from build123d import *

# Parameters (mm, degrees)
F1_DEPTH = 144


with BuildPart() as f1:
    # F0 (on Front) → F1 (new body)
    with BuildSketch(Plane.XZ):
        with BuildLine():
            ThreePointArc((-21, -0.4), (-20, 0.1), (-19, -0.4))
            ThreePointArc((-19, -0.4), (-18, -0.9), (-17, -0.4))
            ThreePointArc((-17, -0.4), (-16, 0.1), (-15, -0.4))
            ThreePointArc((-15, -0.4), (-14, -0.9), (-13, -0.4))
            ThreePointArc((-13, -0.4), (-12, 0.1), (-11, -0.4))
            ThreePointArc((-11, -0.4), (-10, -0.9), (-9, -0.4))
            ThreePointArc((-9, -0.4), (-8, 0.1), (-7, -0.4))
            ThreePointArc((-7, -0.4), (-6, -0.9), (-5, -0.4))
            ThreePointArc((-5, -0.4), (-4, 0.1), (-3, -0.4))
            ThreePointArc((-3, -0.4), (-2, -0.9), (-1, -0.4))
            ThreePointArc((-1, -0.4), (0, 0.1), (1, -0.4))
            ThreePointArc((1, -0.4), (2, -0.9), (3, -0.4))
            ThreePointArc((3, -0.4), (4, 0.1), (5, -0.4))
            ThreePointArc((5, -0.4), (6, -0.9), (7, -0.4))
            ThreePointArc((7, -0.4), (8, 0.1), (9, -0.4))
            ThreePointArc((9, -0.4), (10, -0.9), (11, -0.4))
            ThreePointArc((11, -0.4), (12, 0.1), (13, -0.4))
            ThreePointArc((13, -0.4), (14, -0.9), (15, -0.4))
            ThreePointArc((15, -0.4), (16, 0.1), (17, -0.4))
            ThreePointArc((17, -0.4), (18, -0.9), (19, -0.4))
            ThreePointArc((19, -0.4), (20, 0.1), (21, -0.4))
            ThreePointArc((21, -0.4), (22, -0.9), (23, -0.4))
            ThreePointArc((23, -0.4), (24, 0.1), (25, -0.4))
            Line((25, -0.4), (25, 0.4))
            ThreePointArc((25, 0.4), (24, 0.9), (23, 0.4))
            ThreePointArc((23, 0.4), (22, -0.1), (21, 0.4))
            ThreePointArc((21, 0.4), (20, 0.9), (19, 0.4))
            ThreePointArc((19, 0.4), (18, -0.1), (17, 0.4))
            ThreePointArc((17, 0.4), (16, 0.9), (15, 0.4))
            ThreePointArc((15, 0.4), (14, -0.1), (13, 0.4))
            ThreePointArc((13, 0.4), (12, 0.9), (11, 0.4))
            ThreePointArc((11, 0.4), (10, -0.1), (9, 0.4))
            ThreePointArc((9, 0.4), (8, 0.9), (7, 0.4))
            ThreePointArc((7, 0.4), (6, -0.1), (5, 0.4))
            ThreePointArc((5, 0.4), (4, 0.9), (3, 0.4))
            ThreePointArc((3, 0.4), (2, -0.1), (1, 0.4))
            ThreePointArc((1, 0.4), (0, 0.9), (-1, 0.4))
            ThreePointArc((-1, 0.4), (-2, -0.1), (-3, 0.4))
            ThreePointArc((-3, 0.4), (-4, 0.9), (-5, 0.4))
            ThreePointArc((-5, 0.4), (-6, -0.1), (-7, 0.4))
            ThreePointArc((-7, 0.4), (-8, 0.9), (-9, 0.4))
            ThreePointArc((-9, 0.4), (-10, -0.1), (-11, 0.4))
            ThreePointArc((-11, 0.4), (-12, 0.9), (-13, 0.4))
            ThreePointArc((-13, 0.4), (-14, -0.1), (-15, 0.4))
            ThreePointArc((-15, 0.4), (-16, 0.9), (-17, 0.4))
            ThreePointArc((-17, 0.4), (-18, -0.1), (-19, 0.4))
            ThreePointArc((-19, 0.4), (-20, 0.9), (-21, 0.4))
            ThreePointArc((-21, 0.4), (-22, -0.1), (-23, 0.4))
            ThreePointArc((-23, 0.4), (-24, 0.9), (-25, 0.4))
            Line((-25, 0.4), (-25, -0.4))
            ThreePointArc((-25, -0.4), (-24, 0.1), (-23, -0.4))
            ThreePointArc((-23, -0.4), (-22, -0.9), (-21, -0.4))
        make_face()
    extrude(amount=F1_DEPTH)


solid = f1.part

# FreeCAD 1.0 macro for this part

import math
import FreeCAD as App
import Part
import Sketcher

V = App.Vector

doc = App.newDocument("Part")
params = doc.addObject("Spreadsheet::Sheet", "Params")
for row, (alias, value) in enumerate([
    ("sketch1_radius", "1.25 mm"),
    ("sketch1_height", "0.8 mm"),
    ("pad1_length", "144 mm"),
], start=1):
    params.set(f"A{row}", alias)
    params.set(f"B{row}", "=" + value)
    params.setAlias(f"B{row}", alias)

body = doc.addObject("PartDesign::Body", "Body")

# Sketch on XZ plane
sketch1 = body.newObject("Sketcher::SketchObject", "Sketch")
sketch1.AttachmentSupport = (doc.getObject("XZ_Plane"), [""])
sketch1.MapMode = "FlatFace"
sketch1.addGeometry([
    Part.ArcOfCircle(Part.Circle(V(-20, -1.1, 0), V(0, 0, 1), 1.2), math.radians(37), math.radians(143)),  # 0
    Part.ArcOfCircle(Part.Circle(V(-18, 0.3, 0), V(0, 0, 1), 1.2), math.radians(-143), math.radians(-37)),  # 1
    Part.ArcOfCircle(Part.Circle(V(-16, -1.1, 0), V(0, 0, 1), 1.2), math.radians(37), math.radians(143)),  # 2
    Part.ArcOfCircle(Part.Circle(V(-14, 0.3, 0), V(0, 0, 1), 1.2), math.radians(-143), math.radians(-37)),  # 3
    Part.ArcOfCircle(Part.Circle(V(-12, -1.1, 0), V(0, 0, 1), 1.2), math.radians(37), math.radians(143)),  # 4
    Part.ArcOfCircle(Part.Circle(V(-10, 0.3, 0), V(0, 0, 1), 1.2), math.radians(-143), math.radians(-37)),  # 5
    Part.ArcOfCircle(Part.Circle(V(-8, -1.1, 0), V(0, 0, 1), 1.2), math.radians(37), math.radians(143)),  # 6
    Part.ArcOfCircle(Part.Circle(V(-6, 0.3, 0), V(0, 0, 1), 1.2), math.radians(-143), math.radians(-37)),  # 7
    Part.ArcOfCircle(Part.Circle(V(-4, -1.1, 0), V(0, 0, 1), 1.2), math.radians(37), math.radians(143)),  # 8
    Part.ArcOfCircle(Part.Circle(V(-2, 0.3, 0), V(0, 0, 1), 1.2), math.radians(-143), math.radians(-37)),  # 9
    Part.ArcOfCircle(Part.Circle(V(0, -1.1, 0), V(0, 0, 1), 1.2), math.radians(37), math.radians(143)),  # 10
    Part.ArcOfCircle(Part.Circle(V(2, 0.3, 0), V(0, 0, 1), 1.2), math.radians(-143), math.radians(-37)),  # 11
    Part.ArcOfCircle(Part.Circle(V(4, -1.1, 0), V(0, 0, 1), 1.2), math.radians(37), math.radians(143)),  # 12
    Part.ArcOfCircle(Part.Circle(V(6, 0.3, 0), V(0, 0, 1), 1.2), math.radians(-143), math.radians(-37)),  # 13
    Part.ArcOfCircle(Part.Circle(V(8, -1.1, 0), V(0, 0, 1), 1.2), math.radians(37), math.radians(143)),  # 14
    Part.ArcOfCircle(Part.Circle(V(10, 0.3, 0), V(0, 0, 1), 1.2), math.radians(-143), math.radians(-37)),  # 15
    Part.ArcOfCircle(Part.Circle(V(12, -1.1, 0), V(0, 0, 1), 1.2), math.radians(37), math.radians(143)),  # 16
    Part.ArcOfCircle(Part.Circle(V(14, 0.3, 0), V(0, 0, 1), 1.2), math.radians(-143), math.radians(-37)),  # 17
    Part.ArcOfCircle(Part.Circle(V(16, -1.1, 0), V(0, 0, 1), 1.2), math.radians(37), math.radians(143)),  # 18
    Part.ArcOfCircle(Part.Circle(V(18, 0.3, 0), V(0, 0, 1), 1.2), math.radians(-143), math.radians(-37)),  # 19
    Part.ArcOfCircle(Part.Circle(V(20, -1.1, 0), V(0, 0, 1), 1.2), math.radians(37), math.radians(143)),  # 20
    Part.ArcOfCircle(Part.Circle(V(22, 0.3, 0), V(0, 0, 1), 1.2), math.radians(-143), math.radians(-37)),  # 21
    Part.ArcOfCircle(Part.Circle(V(24, -1.1, 0), V(0, 0, 1), 1.2), math.radians(37), math.radians(143)),  # 22
    Part.LineSegment(V(25, -0.4, 0), V(25, 0.4, 0)),  # 23
    Part.ArcOfCircle(Part.Circle(V(24, -0.3, 0), V(0, 0, 1), 1.2), math.radians(37), math.radians(143)),  # 24
    Part.ArcOfCircle(Part.Circle(V(22, 1.1, 0), V(0, 0, 1), 1.2), math.radians(-143), math.radians(-37)),  # 25
    Part.ArcOfCircle(Part.Circle(V(20, -0.3, 0), V(0, 0, 1), 1.2), math.radians(37), math.radians(143)),  # 26
    Part.ArcOfCircle(Part.Circle(V(18, 1.1, 0), V(0, 0, 1), 1.2), math.radians(-143), math.radians(-37)),  # 27
    Part.ArcOfCircle(Part.Circle(V(16, -0.3, 0), V(0, 0, 1), 1.2), math.radians(37), math.radians(143)),  # 28
    Part.ArcOfCircle(Part.Circle(V(14, 1.1, 0), V(0, 0, 1), 1.2), math.radians(-143), math.radians(-37)),  # 29
    Part.ArcOfCircle(Part.Circle(V(12, -0.3, 0), V(0, 0, 1), 1.2), math.radians(37), math.radians(143)),  # 30
    Part.ArcOfCircle(Part.Circle(V(10, 1.1, 0), V(0, 0, 1), 1.2), math.radians(-143), math.radians(-37)),  # 31
    Part.ArcOfCircle(Part.Circle(V(8, -0.3, 0), V(0, 0, 1), 1.2), math.radians(37), math.radians(143)),  # 32
    Part.ArcOfCircle(Part.Circle(V(6, 1.1, 0), V(0, 0, 1), 1.2), math.radians(-143), math.radians(-37)),  # 33
    Part.ArcOfCircle(Part.Circle(V(4, -0.3, 0), V(0, 0, 1), 1.2), math.radians(37), math.radians(143)),  # 34
    Part.ArcOfCircle(Part.Circle(V(2, 1.1, 0), V(0, 0, 1), 1.2), math.radians(-143), math.radians(-37)),  # 35
    Part.ArcOfCircle(Part.Circle(V(0, -0.3, 0), V(0, 0, 1), 1.2), math.radians(37), math.radians(143)),  # 36
    Part.ArcOfCircle(Part.Circle(V(-2, 1.1, 0), V(0, 0, 1), 1.2), math.radians(-143), math.radians(-37)),  # 37
    Part.ArcOfCircle(Part.Circle(V(-4, -0.3, 0), V(0, 0, 1), 1.2), math.radians(37), math.radians(143)),  # 38
    Part.ArcOfCircle(Part.Circle(V(-6, 1.1, 0), V(0, 0, 1), 1.2), math.radians(-143), math.radians(-37)),  # 39
    Part.ArcOfCircle(Part.Circle(V(-8, -0.3, 0), V(0, 0, 1), 1.2), math.radians(37), math.radians(143)),  # 40
    Part.ArcOfCircle(Part.Circle(V(-10, 1.1, 0), V(0, 0, 1), 1.2), math.radians(-143), math.radians(-37)),  # 41
    Part.ArcOfCircle(Part.Circle(V(-12, -0.3, 0), V(0, 0, 1), 1.2), math.radians(37), math.radians(143)),  # 42
    Part.ArcOfCircle(Part.Circle(V(-14, 1.1, 0), V(0, 0, 1), 1.2), math.radians(-143), math.radians(-37)),  # 43
    Part.ArcOfCircle(Part.Circle(V(-16, -0.3, 0), V(0, 0, 1), 1.2), math.radians(37), math.radians(143)),  # 44
    Part.ArcOfCircle(Part.Circle(V(-18, 1.1, 0), V(0, 0, 1), 1.2), math.radians(-143), math.radians(-37)),  # 45
    Part.ArcOfCircle(Part.Circle(V(-20, -0.3, 0), V(0, 0, 1), 1.2), math.radians(37), math.radians(143)),  # 46
    Part.ArcOfCircle(Part.Circle(V(-22, 1.1, 0), V(0, 0, 1), 1.2), math.radians(-143), math.radians(-37)),  # 47
    Part.ArcOfCircle(Part.Circle(V(-24, -0.3, 0), V(0, 0, 1), 1.2), math.radians(37), math.radians(143)),  # 48
    Part.LineSegment(V(-25, 0.4, 0), V(-25, -0.4, 0)),  # 49
    Part.ArcOfCircle(Part.Circle(V(-24, -1.1, 0), V(0, 0, 1), 1.2), math.radians(37), math.radians(143)),  # 50
    Part.ArcOfCircle(Part.Circle(V(-22, 0.3, 0), V(0, 0, 1), 1.2), math.radians(-143), math.radians(-37)),  # 51
], False)
sketch1.addConstraint([
    Sketcher.Constraint("Tangent", 0, 1, 1, 1),
    Sketcher.Constraint("Tangent", 1, 2, 2, 2),
    Sketcher.Constraint("Tangent", 2, 1, 3, 1),
    Sketcher.Constraint("Tangent", 3, 2, 4, 2),
    Sketcher.Constraint("Tangent", 4, 1, 5, 1),
    Sketcher.Constraint("Tangent", 5, 2, 6, 2),
    Sketcher.Constraint("Tangent", 6, 1, 7, 1),
    Sketcher.Constraint("Tangent", 7, 2, 8, 2),
    Sketcher.Constraint("Tangent", 8, 1, 9, 1),
    Sketcher.Constraint("Tangent", 9, 2, 10, 2),
    Sketcher.Constraint("Tangent", 10, 1, 11, 1),
    Sketcher.Constraint("Tangent", 11, 2, 12, 2),
    Sketcher.Constraint("Tangent", 12, 1, 13, 1),
    Sketcher.Constraint("Tangent", 13, 2, 14, 2),
    Sketcher.Constraint("Tangent", 14, 1, 15, 1),
    Sketcher.Constraint("Tangent", 15, 2, 16, 2),
    Sketcher.Constraint("Tangent", 16, 1, 17, 1),
    Sketcher.Constraint("Tangent", 17, 2, 18, 2),
    Sketcher.Constraint("Tangent", 18, 1, 19, 1),
    Sketcher.Constraint("Tangent", 19, 2, 20, 2),
    Sketcher.Constraint("Tangent", 20, 1, 21, 1),
    Sketcher.Constraint("Tangent", 21, 2, 22, 2),
    Sketcher.Constraint("Coincident", 22, 1, 23, 1),
    Sketcher.Constraint("Coincident", 23, 2, 24, 1),
    Sketcher.Constraint("Tangent", 24, 2, 25, 2),
    Sketcher.Constraint("Tangent", 25, 1, 26, 1),
    Sketcher.Constraint("Tangent", 26, 2, 27, 2),
    Sketcher.Constraint("Tangent", 27, 1, 28, 1),
    Sketcher.Constraint("Tangent", 28, 2, 29, 2),
    Sketcher.Constraint("Tangent", 29, 1, 30, 1),
    Sketcher.Constraint("Tangent", 30, 2, 31, 2),
    Sketcher.Constraint("Tangent", 31, 1, 32, 1),
    Sketcher.Constraint("Tangent", 32, 2, 33, 2),
    Sketcher.Constraint("Tangent", 33, 1, 34, 1),
    Sketcher.Constraint("Tangent", 34, 2, 35, 2),
    Sketcher.Constraint("Tangent", 35, 1, 36, 1),
    Sketcher.Constraint("Tangent", 36, 2, 37, 2),
    Sketcher.Constraint("Tangent", 37, 1, 38, 1),
    Sketcher.Constraint("Tangent", 38, 2, 39, 2),
    Sketcher.Constraint("Tangent", 39, 1, 40, 1),
    Sketcher.Constraint("Tangent", 40, 2, 41, 2),
    Sketcher.Constraint("Tangent", 41, 1, 42, 1),
    Sketcher.Constraint("Tangent", 42, 2, 43, 2),
    Sketcher.Constraint("Tangent", 43, 1, 44, 1),
    Sketcher.Constraint("Tangent", 44, 2, 45, 2),
    Sketcher.Constraint("Tangent", 45, 1, 46, 1),
    Sketcher.Constraint("Tangent", 46, 2, 47, 2),
    Sketcher.Constraint("Tangent", 47, 1, 48, 1),
    Sketcher.Constraint("Coincident", 48, 2, 49, 1),
    Sketcher.Constraint("Coincident", 49, 2, 50, 2),
    Sketcher.Constraint("Tangent", 50, 1, 51, 1),
    Sketcher.Constraint("Tangent", 51, 2, 0, 2),
    Sketcher.Constraint("Vertical", 23),
    Sketcher.Constraint("Vertical", 49),
    Sketcher.Constraint("Equal", 0, 1),
    Sketcher.Constraint("Equal", 1, 2),
    Sketcher.Constraint("Equal", 2, 3),
    Sketcher.Constraint("Equal", 3, 4),
    Sketcher.Constraint("Equal", 4, 5),
    Sketcher.Constraint("Equal", 5, 6),
    Sketcher.Constraint("Equal", 6, 7),
    Sketcher.Constraint("Equal", 7, 8),
    Sketcher.Constraint("Equal", 8, 9),
    Sketcher.Constraint("Equal", 9, 10),
    Sketcher.Constraint("Equal", 10, 11),
    Sketcher.Constraint("Equal", 11, 12),
    Sketcher.Constraint("Equal", 12, 13),
    Sketcher.Constraint("Equal", 13, 14),
    Sketcher.Constraint("Equal", 14, 15),
    Sketcher.Constraint("Equal", 15, 16),
    Sketcher.Constraint("Equal", 16, 17),
    Sketcher.Constraint("Equal", 17, 18),
    Sketcher.Constraint("Equal", 18, 19),
    Sketcher.Constraint("Equal", 19, 20),
    Sketcher.Constraint("Equal", 20, 21),
    Sketcher.Constraint("Equal", 21, 22),
    Sketcher.Constraint("Equal", 22, 24),
    Sketcher.Constraint("Equal", 24, 25),
    Sketcher.Constraint("Equal", 25, 26),
    Sketcher.Constraint("Equal", 26, 27),
    Sketcher.Constraint("Equal", 27, 28),
    Sketcher.Constraint("Equal", 28, 29),
    Sketcher.Constraint("Equal", 29, 30),
    Sketcher.Constraint("Equal", 30, 31),
    Sketcher.Constraint("Equal", 31, 32),
    Sketcher.Constraint("Equal", 32, 33),
    Sketcher.Constraint("Equal", 33, 34),
    Sketcher.Constraint("Equal", 34, 35),
    Sketcher.Constraint("Equal", 35, 36),
    Sketcher.Constraint("Equal", 36, 37),
    Sketcher.Constraint("Equal", 37, 38),
    Sketcher.Constraint("Equal", 38, 39),
    Sketcher.Constraint("Equal", 39, 40),
    Sketcher.Constraint("Equal", 40, 41),
    Sketcher.Constraint("Equal", 41, 42),
    Sketcher.Constraint("Equal", 42, 43),
    Sketcher.Constraint("Equal", 43, 44),
    Sketcher.Constraint("Equal", 44, 45),
    Sketcher.Constraint("Equal", 45, 46),
    Sketcher.Constraint("Equal", 46, 47),
    Sketcher.Constraint("Equal", 47, 48),
    Sketcher.Constraint("Equal", 48, 50),
    Sketcher.Constraint("Equal", 50, 51),
    Sketcher.Constraint("Symmetric", 0, 1, 26, 2, -1, 1),
    Sketcher.Constraint("Symmetric", 1, 2, 27, 1, -1, 1),
    Sketcher.Constraint("Symmetric", 2, 1, 28, 2, -1, 1),
    Sketcher.Constraint("Symmetric", 3, 2, 29, 1, -1, 1),
    Sketcher.Constraint("Symmetric", 4, 1, 30, 2, -1, 1),
    Sketcher.Constraint("Symmetric", 5, 2, 31, 1, -1, 1),
    Sketcher.Constraint("Symmetric", 6, 1, 32, 2, -1, 1),
    Sketcher.Constraint("Symmetric", 7, 2, 33, 1, -1, 1),
    Sketcher.Constraint("Symmetric", 8, 1, 34, 2, -1, 1),
    Sketcher.Constraint("Symmetric", 9, 2, 35, 1, -1, 1),
    Sketcher.Constraint("Symmetric", 10, 1, 36, 2, -1, 1),
    Sketcher.Constraint("Symmetric", 11, 2, 37, 1, -1, 1),
    Sketcher.Constraint("Symmetric", 12, 1, 38, 2, -1, 1),
    Sketcher.Constraint("Symmetric", 13, 2, 39, 1, -1, 1),
    Sketcher.Constraint("Symmetric", 14, 1, 40, 2, -1, 1),
    Sketcher.Constraint("Symmetric", 15, 2, 41, 1, -1, 1),
    Sketcher.Constraint("Symmetric", 16, 1, 42, 2, -1, 1),
    Sketcher.Constraint("Symmetric", 17, 2, 43, 1, -1, 1),
    Sketcher.Constraint("Symmetric", 18, 1, 44, 2, -1, 1),
    Sketcher.Constraint("Symmetric", 19, 2, 45, 1, -1, 1),
    Sketcher.Constraint("Symmetric", 20, 1, 46, 2, -1, 1),
    Sketcher.Constraint("Symmetric", 21, 2, 47, 1, -1, 1),
    Sketcher.Constraint("Symmetric", 22, 1, 48, 2, -1, 1),
    Sketcher.Constraint("Symmetric", 24, 2, 50, 1, -1, 1),
    Sketcher.Constraint("Symmetric", 25, 1, 51, 2, -1, 1),
    Sketcher.Constraint("Symmetric", 9, 3, 11, 3, -2),
    Sketcher.Constraint("Radius", 0, 1.25),
    Sketcher.Constraint("DistanceY", 23, 1, 23, 2, 0.8),
    Sketcher.Constraint("DistanceX", 0, 3, -1, 1, 20.0),
])
sketch1.setExpression("Constraints[129]", "Params.sketch1_radius")
sketch1.setExpression("Constraints[130]", "Params.sketch1_height")
pad1 = body.newObject("PartDesign::Pad", "Pad")
pad1.Profile = sketch1
pad1.setExpression("Length", "Params.pad1_length")

doc.recompute()
